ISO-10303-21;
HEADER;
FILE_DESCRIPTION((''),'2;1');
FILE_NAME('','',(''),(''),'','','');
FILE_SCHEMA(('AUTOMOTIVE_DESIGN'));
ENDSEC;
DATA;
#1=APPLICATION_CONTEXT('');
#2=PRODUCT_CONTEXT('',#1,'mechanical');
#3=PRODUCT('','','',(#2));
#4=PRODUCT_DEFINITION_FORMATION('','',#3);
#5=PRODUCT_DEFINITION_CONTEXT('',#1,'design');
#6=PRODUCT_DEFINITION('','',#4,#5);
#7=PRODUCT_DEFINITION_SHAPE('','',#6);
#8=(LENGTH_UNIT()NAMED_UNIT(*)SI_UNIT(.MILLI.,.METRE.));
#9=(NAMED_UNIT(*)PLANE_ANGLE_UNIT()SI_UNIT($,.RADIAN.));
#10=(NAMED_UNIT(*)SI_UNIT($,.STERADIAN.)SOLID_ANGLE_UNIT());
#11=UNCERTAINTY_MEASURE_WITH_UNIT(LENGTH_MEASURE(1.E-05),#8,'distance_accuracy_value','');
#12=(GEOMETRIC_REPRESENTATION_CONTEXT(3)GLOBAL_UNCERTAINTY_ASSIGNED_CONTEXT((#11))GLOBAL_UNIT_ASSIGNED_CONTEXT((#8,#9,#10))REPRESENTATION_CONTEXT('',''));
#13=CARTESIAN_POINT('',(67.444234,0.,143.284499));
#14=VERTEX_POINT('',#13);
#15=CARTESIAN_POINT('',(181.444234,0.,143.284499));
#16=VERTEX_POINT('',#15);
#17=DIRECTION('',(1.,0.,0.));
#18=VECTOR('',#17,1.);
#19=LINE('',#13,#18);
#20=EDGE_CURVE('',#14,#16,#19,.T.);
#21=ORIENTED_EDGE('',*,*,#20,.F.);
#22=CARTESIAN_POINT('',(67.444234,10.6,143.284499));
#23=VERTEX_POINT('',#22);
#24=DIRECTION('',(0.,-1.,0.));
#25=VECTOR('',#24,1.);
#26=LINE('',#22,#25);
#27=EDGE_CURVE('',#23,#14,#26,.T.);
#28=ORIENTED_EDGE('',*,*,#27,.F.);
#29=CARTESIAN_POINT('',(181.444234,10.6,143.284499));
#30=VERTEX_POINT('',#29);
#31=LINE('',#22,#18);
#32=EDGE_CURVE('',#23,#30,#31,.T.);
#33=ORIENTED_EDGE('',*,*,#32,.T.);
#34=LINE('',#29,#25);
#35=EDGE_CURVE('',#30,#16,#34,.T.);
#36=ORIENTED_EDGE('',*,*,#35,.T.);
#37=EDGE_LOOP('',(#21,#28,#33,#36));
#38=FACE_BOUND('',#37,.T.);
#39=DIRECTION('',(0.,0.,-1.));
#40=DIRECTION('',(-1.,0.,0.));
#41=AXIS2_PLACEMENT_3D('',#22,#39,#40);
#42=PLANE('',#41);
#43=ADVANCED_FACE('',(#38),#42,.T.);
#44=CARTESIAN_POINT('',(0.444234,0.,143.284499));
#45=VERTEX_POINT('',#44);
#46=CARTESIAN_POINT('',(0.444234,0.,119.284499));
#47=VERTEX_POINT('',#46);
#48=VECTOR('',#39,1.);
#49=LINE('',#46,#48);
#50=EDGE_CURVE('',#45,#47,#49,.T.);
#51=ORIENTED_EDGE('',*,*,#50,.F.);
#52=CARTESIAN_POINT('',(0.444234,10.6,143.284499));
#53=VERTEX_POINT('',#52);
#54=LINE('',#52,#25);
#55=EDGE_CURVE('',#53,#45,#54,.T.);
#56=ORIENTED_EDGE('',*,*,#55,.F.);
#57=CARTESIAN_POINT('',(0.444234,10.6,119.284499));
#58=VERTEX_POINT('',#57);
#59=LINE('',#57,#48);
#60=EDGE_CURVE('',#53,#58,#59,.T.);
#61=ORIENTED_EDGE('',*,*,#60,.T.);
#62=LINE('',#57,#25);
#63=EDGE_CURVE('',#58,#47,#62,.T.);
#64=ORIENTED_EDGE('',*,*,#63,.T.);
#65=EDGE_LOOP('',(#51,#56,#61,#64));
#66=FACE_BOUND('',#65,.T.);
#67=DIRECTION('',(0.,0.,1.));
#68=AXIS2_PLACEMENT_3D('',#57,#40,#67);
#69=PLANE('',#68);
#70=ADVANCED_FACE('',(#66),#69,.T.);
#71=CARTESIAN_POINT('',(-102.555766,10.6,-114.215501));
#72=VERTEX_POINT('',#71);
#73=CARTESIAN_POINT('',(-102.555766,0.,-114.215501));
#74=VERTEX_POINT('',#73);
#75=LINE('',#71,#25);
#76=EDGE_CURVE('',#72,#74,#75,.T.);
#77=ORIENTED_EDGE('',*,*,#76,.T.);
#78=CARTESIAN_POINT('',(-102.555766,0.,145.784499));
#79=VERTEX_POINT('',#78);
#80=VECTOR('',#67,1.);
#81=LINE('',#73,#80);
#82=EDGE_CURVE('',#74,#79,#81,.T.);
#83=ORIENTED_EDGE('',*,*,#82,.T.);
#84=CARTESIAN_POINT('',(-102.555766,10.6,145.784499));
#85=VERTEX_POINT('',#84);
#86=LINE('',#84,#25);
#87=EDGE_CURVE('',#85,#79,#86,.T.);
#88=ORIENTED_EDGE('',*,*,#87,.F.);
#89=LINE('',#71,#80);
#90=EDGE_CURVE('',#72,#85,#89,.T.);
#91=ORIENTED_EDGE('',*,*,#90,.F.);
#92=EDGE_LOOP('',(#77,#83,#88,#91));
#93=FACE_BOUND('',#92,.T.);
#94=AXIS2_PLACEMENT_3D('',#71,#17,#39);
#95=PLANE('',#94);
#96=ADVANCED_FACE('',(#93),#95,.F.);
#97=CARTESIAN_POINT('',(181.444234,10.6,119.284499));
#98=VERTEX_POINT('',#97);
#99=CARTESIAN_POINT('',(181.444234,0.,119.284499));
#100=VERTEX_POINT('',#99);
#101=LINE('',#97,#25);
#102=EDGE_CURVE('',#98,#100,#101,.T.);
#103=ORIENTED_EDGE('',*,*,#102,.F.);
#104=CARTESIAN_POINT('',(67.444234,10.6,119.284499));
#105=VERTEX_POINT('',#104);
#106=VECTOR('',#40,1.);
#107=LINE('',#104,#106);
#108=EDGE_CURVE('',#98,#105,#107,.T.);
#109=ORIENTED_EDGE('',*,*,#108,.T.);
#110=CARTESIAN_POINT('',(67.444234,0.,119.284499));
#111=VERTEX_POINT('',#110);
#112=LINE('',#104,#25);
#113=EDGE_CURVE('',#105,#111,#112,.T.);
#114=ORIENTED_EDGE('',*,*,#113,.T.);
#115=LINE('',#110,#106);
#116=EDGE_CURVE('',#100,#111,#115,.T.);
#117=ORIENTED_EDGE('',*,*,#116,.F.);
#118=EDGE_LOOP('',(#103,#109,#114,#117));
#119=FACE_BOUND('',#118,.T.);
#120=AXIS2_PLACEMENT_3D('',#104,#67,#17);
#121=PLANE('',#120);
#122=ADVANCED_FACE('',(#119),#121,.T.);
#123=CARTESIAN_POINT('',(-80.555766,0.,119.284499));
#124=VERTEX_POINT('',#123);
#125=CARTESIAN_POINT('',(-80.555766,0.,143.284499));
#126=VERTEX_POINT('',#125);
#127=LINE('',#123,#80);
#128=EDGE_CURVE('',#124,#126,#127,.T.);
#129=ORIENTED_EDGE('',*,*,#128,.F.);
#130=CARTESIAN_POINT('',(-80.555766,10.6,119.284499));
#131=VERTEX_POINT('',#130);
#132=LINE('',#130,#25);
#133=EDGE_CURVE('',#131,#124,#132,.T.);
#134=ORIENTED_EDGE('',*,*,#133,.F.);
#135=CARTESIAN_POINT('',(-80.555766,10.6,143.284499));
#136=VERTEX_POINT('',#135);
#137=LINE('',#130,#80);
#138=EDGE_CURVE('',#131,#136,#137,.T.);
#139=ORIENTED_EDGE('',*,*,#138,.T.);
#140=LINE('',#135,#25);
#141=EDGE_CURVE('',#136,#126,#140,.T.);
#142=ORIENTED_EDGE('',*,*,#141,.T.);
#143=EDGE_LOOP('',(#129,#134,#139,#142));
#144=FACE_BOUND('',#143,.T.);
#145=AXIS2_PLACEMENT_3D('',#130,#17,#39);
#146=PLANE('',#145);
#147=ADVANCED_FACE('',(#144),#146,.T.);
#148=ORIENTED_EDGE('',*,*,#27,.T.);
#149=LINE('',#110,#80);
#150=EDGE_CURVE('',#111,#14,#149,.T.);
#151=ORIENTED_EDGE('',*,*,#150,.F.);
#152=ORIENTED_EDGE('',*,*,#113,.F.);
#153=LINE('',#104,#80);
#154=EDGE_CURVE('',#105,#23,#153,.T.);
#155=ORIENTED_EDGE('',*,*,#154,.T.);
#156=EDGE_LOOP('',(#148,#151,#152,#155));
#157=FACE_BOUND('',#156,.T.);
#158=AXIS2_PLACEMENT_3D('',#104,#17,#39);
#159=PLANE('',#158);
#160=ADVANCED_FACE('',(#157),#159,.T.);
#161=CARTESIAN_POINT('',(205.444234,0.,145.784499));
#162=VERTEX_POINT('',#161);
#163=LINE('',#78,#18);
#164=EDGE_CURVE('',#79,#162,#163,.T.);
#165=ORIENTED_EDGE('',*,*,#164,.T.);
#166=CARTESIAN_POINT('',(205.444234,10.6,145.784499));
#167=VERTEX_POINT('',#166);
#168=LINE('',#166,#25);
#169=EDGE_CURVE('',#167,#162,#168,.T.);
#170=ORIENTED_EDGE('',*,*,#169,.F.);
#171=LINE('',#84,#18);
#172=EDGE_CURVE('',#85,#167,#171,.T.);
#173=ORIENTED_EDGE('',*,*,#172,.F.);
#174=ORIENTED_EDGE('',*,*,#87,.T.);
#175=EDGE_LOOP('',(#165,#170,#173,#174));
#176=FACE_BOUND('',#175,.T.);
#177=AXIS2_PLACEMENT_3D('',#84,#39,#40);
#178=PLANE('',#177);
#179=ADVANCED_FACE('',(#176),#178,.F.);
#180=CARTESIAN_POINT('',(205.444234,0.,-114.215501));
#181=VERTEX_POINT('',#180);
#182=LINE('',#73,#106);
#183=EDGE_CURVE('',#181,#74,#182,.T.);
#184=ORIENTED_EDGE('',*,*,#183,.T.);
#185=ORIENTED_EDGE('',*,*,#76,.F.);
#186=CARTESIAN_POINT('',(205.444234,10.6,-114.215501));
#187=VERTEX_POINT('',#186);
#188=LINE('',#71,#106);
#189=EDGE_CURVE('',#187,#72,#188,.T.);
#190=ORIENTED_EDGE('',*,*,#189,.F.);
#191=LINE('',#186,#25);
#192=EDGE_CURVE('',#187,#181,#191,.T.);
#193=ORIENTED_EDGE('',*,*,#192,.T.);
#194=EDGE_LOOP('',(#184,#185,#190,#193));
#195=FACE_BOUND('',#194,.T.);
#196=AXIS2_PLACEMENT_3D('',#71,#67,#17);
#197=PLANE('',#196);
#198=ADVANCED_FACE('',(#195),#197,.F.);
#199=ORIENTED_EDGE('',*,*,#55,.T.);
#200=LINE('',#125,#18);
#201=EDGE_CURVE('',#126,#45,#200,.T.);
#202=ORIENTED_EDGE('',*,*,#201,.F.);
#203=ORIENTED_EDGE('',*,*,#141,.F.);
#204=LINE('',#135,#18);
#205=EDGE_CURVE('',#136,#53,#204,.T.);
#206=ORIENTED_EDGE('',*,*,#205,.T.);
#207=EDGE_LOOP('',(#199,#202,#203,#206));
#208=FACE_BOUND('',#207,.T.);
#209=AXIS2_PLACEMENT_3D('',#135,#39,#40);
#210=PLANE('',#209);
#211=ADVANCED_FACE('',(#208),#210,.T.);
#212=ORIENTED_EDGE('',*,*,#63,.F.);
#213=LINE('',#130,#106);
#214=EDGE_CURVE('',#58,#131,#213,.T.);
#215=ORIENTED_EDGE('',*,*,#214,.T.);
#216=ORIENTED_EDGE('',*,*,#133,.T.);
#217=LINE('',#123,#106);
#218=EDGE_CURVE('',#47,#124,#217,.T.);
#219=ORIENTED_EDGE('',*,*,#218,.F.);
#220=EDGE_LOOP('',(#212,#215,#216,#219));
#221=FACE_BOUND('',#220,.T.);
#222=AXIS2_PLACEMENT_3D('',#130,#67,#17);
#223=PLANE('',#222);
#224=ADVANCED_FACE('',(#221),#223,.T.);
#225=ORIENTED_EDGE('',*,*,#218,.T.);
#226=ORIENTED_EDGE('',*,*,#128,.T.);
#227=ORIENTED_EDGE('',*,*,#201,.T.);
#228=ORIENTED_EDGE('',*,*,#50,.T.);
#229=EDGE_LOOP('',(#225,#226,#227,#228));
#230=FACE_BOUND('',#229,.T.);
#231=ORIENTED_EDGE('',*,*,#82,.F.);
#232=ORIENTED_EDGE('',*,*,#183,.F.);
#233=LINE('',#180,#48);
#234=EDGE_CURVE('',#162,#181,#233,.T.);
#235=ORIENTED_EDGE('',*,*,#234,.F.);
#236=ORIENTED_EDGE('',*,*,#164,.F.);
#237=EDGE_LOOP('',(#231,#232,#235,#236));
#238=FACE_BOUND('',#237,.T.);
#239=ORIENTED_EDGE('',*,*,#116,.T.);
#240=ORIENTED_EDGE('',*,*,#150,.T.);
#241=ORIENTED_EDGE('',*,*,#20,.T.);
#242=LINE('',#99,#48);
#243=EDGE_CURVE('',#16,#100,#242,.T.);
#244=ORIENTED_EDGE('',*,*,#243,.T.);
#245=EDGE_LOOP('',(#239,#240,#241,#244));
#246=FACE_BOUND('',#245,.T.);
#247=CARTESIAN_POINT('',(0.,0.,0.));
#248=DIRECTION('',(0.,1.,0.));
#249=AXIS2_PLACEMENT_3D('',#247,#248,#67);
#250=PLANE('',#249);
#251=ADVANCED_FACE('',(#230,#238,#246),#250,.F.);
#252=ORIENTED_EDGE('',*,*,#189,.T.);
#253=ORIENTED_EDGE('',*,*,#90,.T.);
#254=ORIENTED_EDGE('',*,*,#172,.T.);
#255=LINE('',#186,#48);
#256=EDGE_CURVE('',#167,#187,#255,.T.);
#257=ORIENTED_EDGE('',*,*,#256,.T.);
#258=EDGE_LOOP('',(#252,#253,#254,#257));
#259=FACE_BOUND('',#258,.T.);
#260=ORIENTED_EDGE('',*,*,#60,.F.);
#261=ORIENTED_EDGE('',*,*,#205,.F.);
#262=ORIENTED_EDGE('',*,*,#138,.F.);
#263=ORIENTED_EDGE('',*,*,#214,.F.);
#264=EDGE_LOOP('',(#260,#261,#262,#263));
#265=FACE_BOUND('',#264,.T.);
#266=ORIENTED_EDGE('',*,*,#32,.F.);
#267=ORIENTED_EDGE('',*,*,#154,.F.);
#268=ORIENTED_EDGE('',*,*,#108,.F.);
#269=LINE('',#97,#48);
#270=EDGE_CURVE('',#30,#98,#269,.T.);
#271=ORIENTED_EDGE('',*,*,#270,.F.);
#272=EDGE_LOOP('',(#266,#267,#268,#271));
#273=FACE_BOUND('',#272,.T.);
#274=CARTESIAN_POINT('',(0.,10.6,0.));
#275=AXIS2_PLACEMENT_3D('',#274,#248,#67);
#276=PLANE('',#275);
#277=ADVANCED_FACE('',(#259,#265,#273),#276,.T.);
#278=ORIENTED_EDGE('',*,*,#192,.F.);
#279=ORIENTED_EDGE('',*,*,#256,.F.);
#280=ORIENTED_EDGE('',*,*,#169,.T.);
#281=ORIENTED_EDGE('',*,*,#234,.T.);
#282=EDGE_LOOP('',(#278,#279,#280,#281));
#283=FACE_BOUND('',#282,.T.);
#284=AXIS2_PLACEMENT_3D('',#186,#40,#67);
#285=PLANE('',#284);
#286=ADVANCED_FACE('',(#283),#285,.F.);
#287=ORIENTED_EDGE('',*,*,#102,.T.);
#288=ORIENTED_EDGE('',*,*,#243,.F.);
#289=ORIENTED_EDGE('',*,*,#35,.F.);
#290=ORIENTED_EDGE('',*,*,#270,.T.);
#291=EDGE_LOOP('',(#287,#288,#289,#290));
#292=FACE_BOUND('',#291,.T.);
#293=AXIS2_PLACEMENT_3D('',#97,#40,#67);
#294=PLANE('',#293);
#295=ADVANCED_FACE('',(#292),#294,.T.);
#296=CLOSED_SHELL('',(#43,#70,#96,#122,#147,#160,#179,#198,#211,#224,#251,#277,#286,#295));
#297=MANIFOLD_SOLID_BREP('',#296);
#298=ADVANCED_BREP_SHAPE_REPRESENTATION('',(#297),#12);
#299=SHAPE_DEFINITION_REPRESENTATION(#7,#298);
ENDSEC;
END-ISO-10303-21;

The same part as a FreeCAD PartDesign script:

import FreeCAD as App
import Part
import Sketcher


def add_polygon(sketch, points):
    """Adds a closed chain of lines whose ends are joined by coincident constraints."""
    first, n = sketch.GeometryCount, len(points)
    for a, b in zip(points, points[1:] + points[:1]):
        sketch.addGeometry(Part.LineSegment(App.Vector(*a, 0), App.Vector(*b, 0)), False)
    for i in range(n):
        sketch.addConstraint(Sketcher.Constraint("Coincident", first + i, 2, first + (i + 1) % n, 1))

doc = App.newDocument("Part")
body = doc.addObject("PartDesign::Body", "Body")

# Sketch on XZ plane
sketch1 = doc.addObject("Sketcher::SketchObject", "Sketch")
body.addObject(sketch1)
sketch1.AttachmentSupport = (doc.XZ_Plane, [""])
sketch1.MapMode = "FlatFace"
add_polygon(sketch1, [(-103, -114), (-103, 146), (205, 146), (205, -114)])  # lines 0-3
sketch1.addConstraint(Sketcher.Constraint("Vertical", 0))
sketch1.addConstraint(Sketcher.Constraint("Horizontal", 1))
sketch1.addConstraint(Sketcher.Constraint("Vertical", 2))
sketch1.addConstraint(Sketcher.Constraint("Horizontal", 3))
sketch1.addConstraint(Sketcher.Constraint("DistanceX", 1, 1, 1, 2, 308.0))
sketch1.addConstraint(Sketcher.Constraint("DistanceY", 0, 1, 0, 2, 260.0))
sketch1.addConstraint(Sketcher.Constraint("DistanceY", -1, 1, 0, 2, 145.784499))
sketch1.addConstraint(Sketcher.Constraint("DistanceX", 0, 2, -1, 1, 102.555766))
pad1 = doc.addObject("PartDesign::Pad", "Pad")
body.addObject(pad1)
pad1.Profile = sketch1
pad1.Length = 10.6
pad1.Reversed = True

# Sketch on XZ plane
sketch2 = doc.addObject("Sketcher::SketchObject", "Sketch001")
body.addObject(sketch2)
sketch2.AttachmentSupport = (doc.XZ_Plane, [""])
sketch2.MapMode = "FlatFace"
add_polygon(sketch2, [(67, 119), (67, 143), (181, 143), (181, 119)])  # lines 0-3
add_polygon(sketch2, [(-81, 119), (-81, 143), (0, 143), (0, 119)])  # lines 4-7
sketch2.addConstraint(Sketcher.Constraint("Vertical", 0))
sketch2.addConstraint(Sketcher.Constraint("Horizontal", 1))
sketch2.addConstraint(Sketcher.Constraint("Vertical", 2))
sketch2.addConstraint(Sketcher.Constraint("Horizontal", 3))
sketch2.addConstraint(Sketcher.Constraint("Vertical", 4))
sketch2.addConstraint(Sketcher.Constraint("Horizontal", 5))
sketch2.addConstraint(Sketcher.Constraint("Vertical", 6))
sketch2.addConstraint(Sketcher.Constraint("Horizontal", 7))
sketch2.addConstraint(Sketcher.Constraint("Horizontal", 1, 2, 4, 2))
sketch2.addConstraint(Sketcher.Constraint("Horizontal", 3, 2, 6, 2))
sketch2.addConstraint(Sketcher.Constraint("DistanceX", 1, 1, 1, 2, 114.0))
sketch2.addConstraint(Sketcher.Constraint("DistanceX", 5, 1, 5, 2, 81.0))
sketch2.addConstraint(Sketcher.Constraint("DistanceY", 0, 1, 0, 2, 24.0))
sketch2.addConstraint(Sketcher.Constraint("DistanceX", 4, 2, 0, 2, 148.0))
sketch2.addConstraint(Sketcher.Constraint("DistanceY", -1, 1, 0, 2, 143.284499))
sketch2.addConstraint(Sketcher.Constraint("DistanceX", -1, 1, 0, 2, 67.444234))
pocket1 = doc.addObject("PartDesign::Pocket", "Pocket")
body.addObject(pocket1)
pocket1.Profile = sketch2
pocket1.Length = 10.6

doc.recompute()
